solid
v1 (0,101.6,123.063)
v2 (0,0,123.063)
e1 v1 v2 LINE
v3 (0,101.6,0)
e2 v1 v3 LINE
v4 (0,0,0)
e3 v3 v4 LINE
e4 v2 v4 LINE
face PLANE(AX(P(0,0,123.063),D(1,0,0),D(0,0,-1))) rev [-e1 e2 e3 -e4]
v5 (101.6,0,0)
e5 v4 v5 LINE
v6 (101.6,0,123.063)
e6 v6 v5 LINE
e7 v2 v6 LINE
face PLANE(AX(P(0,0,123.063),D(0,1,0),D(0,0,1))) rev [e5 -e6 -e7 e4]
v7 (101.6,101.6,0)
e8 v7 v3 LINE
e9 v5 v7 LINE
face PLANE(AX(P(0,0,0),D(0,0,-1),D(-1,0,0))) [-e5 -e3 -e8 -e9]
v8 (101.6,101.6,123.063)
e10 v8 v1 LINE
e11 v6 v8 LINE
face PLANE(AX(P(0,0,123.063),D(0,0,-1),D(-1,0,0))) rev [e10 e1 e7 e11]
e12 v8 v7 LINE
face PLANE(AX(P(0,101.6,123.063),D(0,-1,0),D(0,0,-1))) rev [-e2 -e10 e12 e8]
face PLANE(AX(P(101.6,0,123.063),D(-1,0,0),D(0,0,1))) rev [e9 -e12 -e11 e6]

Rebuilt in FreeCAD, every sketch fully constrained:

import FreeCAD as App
import Part
import Sketcher
from FreeCAD import Vector
Q = App.Units.Quantity

doc = App.newDocument("Part")
body = doc.addObject("PartDesign::Body", "Body")

# Sketch on XY plane
sketch1 = doc.addObject("Sketcher::SketchObject", "Sketch")
body.addObject(sketch1)
sketch1.AttachmentSupport = (doc.XY_Plane, [""])
sketch1.MapMode = "FlatFace"
sketch1.addGeometry([
    Part.LineSegment(Vector(0, 102, 0), Vector(0, 0, 0)),
    Part.LineSegment(Vector(0, 0, 0), Vector(102, 0, 0)),
    Part.LineSegment(Vector(102, 0, 0), Vector(102, 102, 0)),
    Part.LineSegment(Vector(102, 102, 0), Vector(0, 102, 0)),
], False)
sketch1.addConstraint([
    Sketcher.Constraint("Coincident", 0, 2, 1, 1),
    Sketcher.Constraint("Coincident", 1, 2, 2, 1),
    Sketcher.Constraint("Coincident", 2, 2, 3, 1),
    Sketcher.Constraint("Coincident", 3, 2, 0, 1),
    Sketcher.Constraint("Vertical", 0),
    Sketcher.Constraint("Horizontal", 1),
    Sketcher.Constraint("Vertical", 2),
    Sketcher.Constraint("Horizontal", 3),
    Sketcher.Constraint("Coincident", 0, 2, -1, 1),
    Sketcher.Constraint("Equal", 3, 0),
    Sketcher.Constraint("DistanceX", 1, 1, 1, 2, Q("4 in")),
])
pad1 = doc.addObject("PartDesign::Pad", "Pad")
body.addObject(pad1)
pad1.Profile = sketch1
pad1.Length = Q("4.845 in")

doc.recompute()
